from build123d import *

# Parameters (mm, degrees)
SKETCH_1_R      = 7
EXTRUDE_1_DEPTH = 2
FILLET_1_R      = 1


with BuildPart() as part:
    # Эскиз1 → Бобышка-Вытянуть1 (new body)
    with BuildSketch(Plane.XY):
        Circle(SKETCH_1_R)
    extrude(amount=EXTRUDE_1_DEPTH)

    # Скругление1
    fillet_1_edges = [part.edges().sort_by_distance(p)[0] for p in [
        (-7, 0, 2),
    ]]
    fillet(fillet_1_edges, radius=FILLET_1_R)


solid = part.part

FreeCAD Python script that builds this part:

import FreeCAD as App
import Part
import Sketcher
Q = App.Units.Quantity


def edges_at(feature, points):
    """Names of the edges that pass closest to the given points."""
    edges = feature.Shape.Edges
    near = lambda p: min(range(len(edges)), key=lambda i: edges[i].distToShape(Part.Vertex(*p))[0])
    return sorted({f"Edge{near(p) + 1}" for p in points})

doc = App.newDocument("Part")
body = doc.addObject("PartDesign::Body", "Body")

sketch1 = body.newObject("Sketcher::SketchObject", "Sketch")
sketch1.AttachmentSupport = (doc.getObject("XY_Plane"), [""])
sketch1.MapMode = "FlatFace"
sketch1.addGeometry(Part.Circle(App.Vector(0, 0, 0), App.Vector(0, 0, 1), 7), False)
sketch1.addConstraint([
    Sketcher.Constraint("Coincident", 0, 3, -1, 1),
    Sketcher.Constraint("Diameter", 0, Q("14 mm")),
])
pad1 = body.newObject("PartDesign::Pad", "Pad")
pad1.Profile = sketch1
pad1.Length = 2
doc.recompute()

fillet = body.newObject("PartDesign::Fillet", "Fillet")
fillet.Base = (pad1, edges_at(pad1, [(-7, 0, 2)]))
fillet.Radius = 1

doc.recompute()
